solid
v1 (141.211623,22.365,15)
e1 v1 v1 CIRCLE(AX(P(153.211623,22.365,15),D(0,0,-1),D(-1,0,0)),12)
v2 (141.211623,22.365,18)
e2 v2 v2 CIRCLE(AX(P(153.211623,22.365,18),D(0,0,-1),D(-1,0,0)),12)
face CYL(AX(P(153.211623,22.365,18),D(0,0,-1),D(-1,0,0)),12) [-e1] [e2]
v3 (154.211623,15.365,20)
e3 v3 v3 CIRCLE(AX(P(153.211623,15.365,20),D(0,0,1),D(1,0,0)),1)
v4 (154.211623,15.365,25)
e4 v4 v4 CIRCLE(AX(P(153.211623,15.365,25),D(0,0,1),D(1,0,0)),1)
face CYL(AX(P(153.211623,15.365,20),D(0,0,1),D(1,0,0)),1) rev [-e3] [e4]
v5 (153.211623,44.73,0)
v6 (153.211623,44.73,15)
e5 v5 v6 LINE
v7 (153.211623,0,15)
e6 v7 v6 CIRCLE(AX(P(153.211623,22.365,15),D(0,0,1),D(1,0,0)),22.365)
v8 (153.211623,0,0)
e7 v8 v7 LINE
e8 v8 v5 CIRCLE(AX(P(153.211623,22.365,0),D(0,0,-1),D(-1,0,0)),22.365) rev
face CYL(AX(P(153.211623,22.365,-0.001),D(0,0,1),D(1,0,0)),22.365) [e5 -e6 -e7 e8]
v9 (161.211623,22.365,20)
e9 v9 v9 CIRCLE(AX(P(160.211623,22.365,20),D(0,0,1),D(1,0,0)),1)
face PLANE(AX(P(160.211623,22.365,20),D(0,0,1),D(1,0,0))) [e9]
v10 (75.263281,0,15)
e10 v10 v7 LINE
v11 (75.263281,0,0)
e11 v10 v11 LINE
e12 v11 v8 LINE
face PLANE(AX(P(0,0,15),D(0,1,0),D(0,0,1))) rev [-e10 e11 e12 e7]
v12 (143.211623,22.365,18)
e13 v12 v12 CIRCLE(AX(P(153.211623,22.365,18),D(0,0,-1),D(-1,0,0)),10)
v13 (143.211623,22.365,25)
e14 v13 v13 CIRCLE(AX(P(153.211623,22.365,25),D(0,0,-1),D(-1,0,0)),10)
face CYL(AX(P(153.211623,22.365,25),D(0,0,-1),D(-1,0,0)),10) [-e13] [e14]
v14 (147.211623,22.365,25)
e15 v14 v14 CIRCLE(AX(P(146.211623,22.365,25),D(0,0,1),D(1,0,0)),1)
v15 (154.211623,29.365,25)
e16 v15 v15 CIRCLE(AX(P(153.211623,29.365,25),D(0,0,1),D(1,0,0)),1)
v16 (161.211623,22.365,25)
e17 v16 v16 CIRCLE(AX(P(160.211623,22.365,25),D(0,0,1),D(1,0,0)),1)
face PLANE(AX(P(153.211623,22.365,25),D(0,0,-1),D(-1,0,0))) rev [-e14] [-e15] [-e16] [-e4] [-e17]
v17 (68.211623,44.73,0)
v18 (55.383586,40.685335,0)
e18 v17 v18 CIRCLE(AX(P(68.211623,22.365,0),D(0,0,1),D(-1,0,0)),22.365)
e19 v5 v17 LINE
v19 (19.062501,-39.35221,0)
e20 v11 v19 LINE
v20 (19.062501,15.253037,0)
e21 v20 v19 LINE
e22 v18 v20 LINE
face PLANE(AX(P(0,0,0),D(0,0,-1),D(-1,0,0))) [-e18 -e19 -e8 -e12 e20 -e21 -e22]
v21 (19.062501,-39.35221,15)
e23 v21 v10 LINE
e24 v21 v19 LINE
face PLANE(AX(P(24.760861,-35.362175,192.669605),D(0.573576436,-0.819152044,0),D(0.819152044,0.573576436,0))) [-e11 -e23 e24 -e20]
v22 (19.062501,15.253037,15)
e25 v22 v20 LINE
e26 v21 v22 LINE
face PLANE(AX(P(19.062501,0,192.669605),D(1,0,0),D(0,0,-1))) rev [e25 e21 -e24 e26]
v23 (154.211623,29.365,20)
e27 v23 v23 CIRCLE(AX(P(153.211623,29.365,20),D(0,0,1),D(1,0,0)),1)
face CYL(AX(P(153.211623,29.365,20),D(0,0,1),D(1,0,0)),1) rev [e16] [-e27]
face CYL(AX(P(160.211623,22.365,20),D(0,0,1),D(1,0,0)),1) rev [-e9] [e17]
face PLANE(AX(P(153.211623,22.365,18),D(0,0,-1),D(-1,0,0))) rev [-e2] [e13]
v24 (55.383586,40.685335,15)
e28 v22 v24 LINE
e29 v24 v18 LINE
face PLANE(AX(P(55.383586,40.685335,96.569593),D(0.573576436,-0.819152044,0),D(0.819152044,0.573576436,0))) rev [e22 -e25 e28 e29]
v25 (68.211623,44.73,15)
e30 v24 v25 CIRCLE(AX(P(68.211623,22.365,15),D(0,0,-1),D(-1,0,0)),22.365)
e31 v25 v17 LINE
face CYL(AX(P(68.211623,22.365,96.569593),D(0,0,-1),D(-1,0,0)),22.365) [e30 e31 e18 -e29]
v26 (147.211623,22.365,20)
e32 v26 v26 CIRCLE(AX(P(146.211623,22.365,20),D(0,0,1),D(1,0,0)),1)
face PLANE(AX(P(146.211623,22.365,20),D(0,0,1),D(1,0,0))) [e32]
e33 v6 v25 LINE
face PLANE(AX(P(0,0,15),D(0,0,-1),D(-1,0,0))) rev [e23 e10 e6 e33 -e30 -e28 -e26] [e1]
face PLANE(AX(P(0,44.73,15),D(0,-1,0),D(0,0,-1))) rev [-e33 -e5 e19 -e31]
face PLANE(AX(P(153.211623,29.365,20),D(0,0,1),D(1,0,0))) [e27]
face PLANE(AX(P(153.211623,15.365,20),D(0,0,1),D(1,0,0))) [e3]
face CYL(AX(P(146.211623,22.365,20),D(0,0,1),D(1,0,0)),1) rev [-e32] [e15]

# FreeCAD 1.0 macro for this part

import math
import FreeCAD as App
import Part
import Sketcher
Q = App.Units.Quantity

doc = App.newDocument("Part")
params = doc.addObject("Spreadsheet::Sheet", "Params")
for row, (alias, value) in enumerate([
    ("sketch1_width", "300 mm"),
    ("sketch1_height", "44.73 mm"),
    ("pad1_length", "15 mm"),
    ("sketch3_diameter", "20 mm"),
    ("pad2_length", "10 mm"),
    ("sketch4_diameter", "2 mm"),
    ("pocket2_length", "5 mm"),
    ("pad3_length", "15 mm"),
    ("sketch6_height", "44.73 mm"),
    ("pocket3_length", "15 mm"),
    ("sketch7_diameter", "24 mm"),
    ("sketch7_diameter2", "20 mm"),
    ("pad4_length", "3 mm"),
], start=1):
    params.set(f"A{row}", alias)
    params.set(f"B{row}", "=" + value)
    params.setAlias(f"B{row}", alias)

body = doc.addObject("PartDesign::Body", "Body")

# Sketch on XY plane
sketch1 = body.newObject("Sketcher::SketchObject", "Sketch")
sketch1.AttachmentSupport = (doc.getObject("XY_Plane"), [""])
sketch1.MapMode = "FlatFace"
sketch1.addGeometry([
    Part.LineSegment(App.Vector(0, 45, 0), App.Vector(0, 0, 0)),
    Part.LineSegment(App.Vector(0, 0, 0), App.Vector(300, 0, 0)),
    Part.LineSegment(App.Vector(300, 0, 0), App.Vector(300, 45, 0)),
    Part.LineSegment(App.Vector(300, 45, 0), App.Vector(0, 45, 0)),
], False)
sketch1.addConstraint([
    Sketcher.Constraint("Coincident", 0, 2, 1, 1),
    Sketcher.Constraint("Coincident", 1, 2, 2, 1),
    Sketcher.Constraint("Coincident", 2, 2, 3, 1),
    Sketcher.Constraint("Coincident", 3, 2, 0, 1),
    Sketcher.Constraint("Vertical", 0),
    Sketcher.Constraint("Horizontal", 1),
    Sketcher.Constraint("Vertical", 2),
    Sketcher.Constraint("Horizontal", 3),
    Sketcher.Constraint("Coincident", 0, 2, -1, 1),
    Sketcher.Constraint("DistanceX", 1, 1, 1, 2, 300.0),
    Sketcher.Constraint("DistanceY", 0, 2, 0, 1, 44.73),
])
sketch1.setExpression("Constraints[9]", "Params.sketch1_width")
sketch1.setExpression("Constraints[10]", "Params.sketch1_height")
pad1 = body.newObject("PartDesign::Pad", "Pad")
pad1.Profile = sketch1
pad1.setExpression("Length", "Params.pad1_length")

# Sketch on XY plane
sketch2 = body.newObject("Sketcher::SketchObject", "Sketch001")
sketch2.AttachmentSupport = (doc.getObject("XY_Plane"), [""])
sketch2.MapMode = "FlatFace"
sketch2.AttachmentOffset = App.Placement(App.Vector(0, 0, 15), App.Rotation())
sketch2.addGeometry([
    Part.LineSegment(App.Vector(300, 45, 0), App.Vector(153, 45, 0)),
    Part.ArcOfCircle(Part.Circle(App.Vector(153, 22, 0), App.Vector(0, 0, 1), 22), math.radians(-90), math.radians(90)),
    Part.LineSegment(App.Vector(153, 0, 0), App.Vector(300, 0, 0)),
    Part.LineSegment(App.Vector(300, 0, 0), App.Vector(300, 45, 0)),
], False)
sketch2.addConstraint([
    Sketcher.Constraint("Tangent", 0, 2, 1, 2),
    Sketcher.Constraint("Tangent", 1, 1, 2, 1),
    Sketcher.Constraint("Coincident", 2, 2, 3, 1),
    Sketcher.Constraint("Coincident", 3, 2, 0, 1),
    Sketcher.Constraint("Horizontal", 0),
    Sketcher.Constraint("Horizontal", 2),
    Sketcher.Constraint("Vertical", 3),
    Sketcher.Constraint("PointOnObject", 1, 1, -1),
    Sketcher.Constraint("DistanceX", -1, 1, 2, 2, 300.0),
    Sketcher.Constraint("Radius", 1, 22.365),
    Sketcher.Constraint("DistanceX", 0, 2, 0, 1, 146.788377),
])
pocket1 = body.newObject("PartDesign::Pocket", "Pocket")
pocket1.Profile = sketch2
pocket1.Type = "UpToFirst"

# Sketch on XY plane
sketch3 = body.newObject("Sketcher::SketchObject", "Sketch002")
sketch3.AttachmentSupport = (doc.getObject("XY_Plane"), [""])
sketch3.MapMode = "FlatFace"
sketch3.AttachmentOffset = App.Placement(App.Vector(0, 0, 15), App.Rotation())
sketch3.addGeometry(Part.Circle(App.Vector(153, 22, 0), App.Vector(0, 0, 1), 10), False)
sketch3.addConstraint([
    Sketcher.Constraint("Diameter", 0, 20.0),
    Sketcher.Constraint("DistanceY", -1, 1, 0, 3, 22.365),
    Sketcher.Constraint("DistanceX", -1, 1, 0, 3, 153.211623),
])
sketch3.setExpression("Constraints[0]", "Params.sketch3_diameter")
pad2 = body.newObject("PartDesign::Pad", "Pad001")
pad2.Profile = sketch3
pad2.setExpression("Length", "Params.pad2_length")

# Sketch on XY plane
sketch4 = body.newObject("Sketcher::SketchObject", "Sketch003")
sketch4.AttachmentSupport = (doc.getObject("XY_Plane"), [""])
sketch4.MapMode = "FlatFace"
sketch4.AttachmentOffset = App.Placement(App.Vector(0, 0, 25), App.Rotation())
sketch4.addGeometry([
    Part.Circle(App.Vector(153.2, 29.4, 0), App.Vector(0, 0, 1), 1),  # 0
    Part.Circle(App.Vector(160.2, -284.1, 0), App.Vector(0, 0, 1), 1),  # 1
    Part.Circle(App.Vector(-153.2, -291.1, 0), App.Vector(0, 0, 1), 1),  # 2
    Part.Circle(App.Vector(-160.2, 22.4, 0), App.Vector(0, 0, 1), 1),  # 3
    Part.Circle(App.Vector(160.2, 22.4, 0), App.Vector(0, 0, 1), 1),  # 4
    Part.Circle(App.Vector(153.2, 15.4, 0), App.Vector(0, 0, 1), 1),  # 5
    Part.Circle(App.Vector(146.2, 22.4, 0), App.Vector(0, 0, 1), 1),  # 6
], False)
sketch4.addConstraint([
    Sketcher.Constraint("Equal", 0, 1),
    Sketcher.Constraint("Equal", 1, 2),
    Sketcher.Constraint("Equal", 2, 3),
    Sketcher.Constraint("Equal", 3, 4),
    Sketcher.Constraint("Equal", 4, 5),
    Sketcher.Constraint("Equal", 5, 6),
    Sketcher.Constraint("Symmetric", 3, 3, 4, 3, -2),
    Sketcher.Constraint("Horizontal", 4, 3, 6, 3),
    Sketcher.Constraint("Vertical", 1, 3, 4, 3),
    Sketcher.Constraint("Vertical", 0, 3, 5, 3),
    Sketcher.Constraint("Diameter", 0, 2.0),
    Sketcher.Constraint("DistanceX", 0, 3, 1, 3, 7.0),
    Sketcher.Constraint("DistanceY", 2, 3, 1, 3, 7.0),
    Sketcher.Constraint("DistanceY", 3, 3, 0, 3, 7.0),
    Sketcher.Constraint("DistanceX", 3, 3, 2, 3, 7.0),
    Sketcher.Constraint("DistanceY", 5, 3, 4, 3, 7.0),
    Sketcher.Constraint("DistanceX", 6, 3, 5, 3, 7.0),
    Sketcher.Constraint("DistanceY", -1, 1, 0, 3, 29.365),
    Sketcher.Constraint("DistanceX", -1, 1, 0, 3, 153.211623),
    Sketcher.Constraint("DistanceY", 1, 3, -1, 1, 284.058247),
])
sketch4.setExpression("Constraints[10]", "Params.sketch4_diameter")
pocket2 = body.newObject("PartDesign::Pocket", "Pocket001")
pocket2.Profile = sketch4
pocket2.setExpression("Length", "Params.pocket2_length")

# Sketch on XY plane
sketch5 = body.newObject("Sketcher::SketchObject", "Sketch004")
sketch5.AttachmentSupport = (doc.getObject("XY_Plane"), [""])
sketch5.MapMode = "FlatFace"
sketch5.addGeometry([
    Part.LineSegment(App.Vector(19, -39, 0), App.Vector(75, 0, 0)),
    Part.LineSegment(App.Vector(75, 0, 0), App.Vector(19, 0, 0)),
    Part.LineSegment(App.Vector(19, 0, 0), App.Vector(19, -39, 0)),
], False)
sketch5.addConstraint([
    Sketcher.Constraint("Coincident", 0, 2, 1, 1),
    Sketcher.Constraint("Coincident", 1, 2, 2, 1),
    Sketcher.Constraint("Coincident", 2, 2, 0, 1),
    Sketcher.Constraint("Horizontal", 1),
    Sketcher.Constraint("Vertical", 2),
    Sketcher.Constraint("PointOnObject", 0, 2, -1),
    Sketcher.Constraint("Angle", 0, Q("35 deg")),
    Sketcher.Constraint("DistanceX", 1, 2, 1, 1, 56.20078),
    Sketcher.Constraint("DistanceX", -1, 1, 1, 2, 19.062501),
])
pad3 = body.newObject("PartDesign::Pad", "Pad002")
pad3.Profile = sketch5
pad3.setExpression("Length", "Params.pad3_length")

# Sketch on XY plane
sketch6 = body.newObject("Sketcher::SketchObject", "Sketch005")
sketch6.AttachmentSupport = (doc.getObject("XY_Plane"), [""])
sketch6.MapMode = "FlatFace"
sketch6.addGeometry([
    Part.LineSegment(App.Vector(19, 15, 0), App.Vector(19, 0, 0)),  # 0
    Part.LineSegment(App.Vector(19, 0, 0), App.Vector(0, 0, 0)),  # 1
    Part.LineSegment(App.Vector(0, 0, 0), App.Vector(0, 45, 0)),  # 2
    Part.LineSegment(App.Vector(0, 45, 0), App.Vector(68, 45, 0)),  # 3
    Part.ArcOfCircle(Part.Circle(App.Vector(68, 22, 0), App.Vector(0, 0, 1), 22), math.radians(90), math.radians(125)),  # 4
    Part.LineSegment(App.Vector(55, 41, 0), App.Vector(19, 15, 0)),  # 5
], False)
sketch6.addConstraint([
    Sketcher.Constraint("Coincident", 0, 2, 1, 1),
    Sketcher.Constraint("Coincident", 1, 2, 2, 1),
    Sketcher.Constraint("Coincident", 2, 2, 3, 1),
    Sketcher.Constraint("Tangent", 3, 2, 4, 1),
    Sketcher.Constraint("Tangent", 4, 2, 5, 1),
    Sketcher.Constraint("Coincident", 5, 2, 0, 1),
    Sketcher.Constraint("Vertical", 0),
    Sketcher.Constraint("Horizontal", 1),
    Sketcher.Constraint("Vertical", 2),
    Sketcher.Constraint("Horizontal", 3),
    Sketcher.Constraint("Coincident", 1, 2, -1, 1),
    Sketcher.Constraint("Angle", 5, Q("-145 deg")),
    Sketcher.Constraint("Radius", 4, 22.365),
    Sketcher.Constraint("DistanceY", 2, 1, 2, 2, 44.73),
    Sketcher.Constraint("DistanceX", 1, 2, 1, 1, 19.062501),
    Sketcher.Constraint("Distance", 5, 44.339858),
])
sketch6.setExpression("Constraints[13]", "Params.sketch6_height")
pocket3 = body.newObject("PartDesign::Pocket", "Pocket002")
pocket3.Profile = sketch6
pocket3.setExpression("Length", "Params.pocket3_length")
pocket3.Reversed = True

# Sketch on XY plane
sketch7 = body.newObject("Sketcher::SketchObject", "Sketch006")
sketch7.AttachmentSupport = (doc.getObject("XY_Plane"), [""])
sketch7.MapMode = "FlatFace"
sketch7.AttachmentOffset = App.Placement(App.Vector(0, 0, 15), App.Rotation())
sketch7.addGeometry([
    Part.Circle(App.Vector(153, 22, 0), App.Vector(0, 0, 1), 12),
    Part.Circle(App.Vector(153, 22, 0), App.Vector(0, 0, 1), 10),
], False)
sketch7.addConstraint([
    Sketcher.Constraint("Coincident", 1, 3, 0, 3),
    Sketcher.Constraint("Diameter", 0, 24.0),
    Sketcher.Constraint("Diameter", 1, 20.0),
    Sketcher.Constraint("DistanceY", -1, 1, 0, 3, 22.365),
    Sketcher.Constraint("DistanceX", -1, 1, 0, 3, 153.211623),
])
sketch7.setExpression("Constraints[1]", "Params.sketch7_diameter")
sketch7.setExpression("Constraints[2]", "Params.sketch7_diameter2")
pad4 = body.newObject("PartDesign::Pad", "Pad003")
pad4.Profile = sketch7
pad4.setExpression("Length", "Params.pad4_length")

doc.recompute()
